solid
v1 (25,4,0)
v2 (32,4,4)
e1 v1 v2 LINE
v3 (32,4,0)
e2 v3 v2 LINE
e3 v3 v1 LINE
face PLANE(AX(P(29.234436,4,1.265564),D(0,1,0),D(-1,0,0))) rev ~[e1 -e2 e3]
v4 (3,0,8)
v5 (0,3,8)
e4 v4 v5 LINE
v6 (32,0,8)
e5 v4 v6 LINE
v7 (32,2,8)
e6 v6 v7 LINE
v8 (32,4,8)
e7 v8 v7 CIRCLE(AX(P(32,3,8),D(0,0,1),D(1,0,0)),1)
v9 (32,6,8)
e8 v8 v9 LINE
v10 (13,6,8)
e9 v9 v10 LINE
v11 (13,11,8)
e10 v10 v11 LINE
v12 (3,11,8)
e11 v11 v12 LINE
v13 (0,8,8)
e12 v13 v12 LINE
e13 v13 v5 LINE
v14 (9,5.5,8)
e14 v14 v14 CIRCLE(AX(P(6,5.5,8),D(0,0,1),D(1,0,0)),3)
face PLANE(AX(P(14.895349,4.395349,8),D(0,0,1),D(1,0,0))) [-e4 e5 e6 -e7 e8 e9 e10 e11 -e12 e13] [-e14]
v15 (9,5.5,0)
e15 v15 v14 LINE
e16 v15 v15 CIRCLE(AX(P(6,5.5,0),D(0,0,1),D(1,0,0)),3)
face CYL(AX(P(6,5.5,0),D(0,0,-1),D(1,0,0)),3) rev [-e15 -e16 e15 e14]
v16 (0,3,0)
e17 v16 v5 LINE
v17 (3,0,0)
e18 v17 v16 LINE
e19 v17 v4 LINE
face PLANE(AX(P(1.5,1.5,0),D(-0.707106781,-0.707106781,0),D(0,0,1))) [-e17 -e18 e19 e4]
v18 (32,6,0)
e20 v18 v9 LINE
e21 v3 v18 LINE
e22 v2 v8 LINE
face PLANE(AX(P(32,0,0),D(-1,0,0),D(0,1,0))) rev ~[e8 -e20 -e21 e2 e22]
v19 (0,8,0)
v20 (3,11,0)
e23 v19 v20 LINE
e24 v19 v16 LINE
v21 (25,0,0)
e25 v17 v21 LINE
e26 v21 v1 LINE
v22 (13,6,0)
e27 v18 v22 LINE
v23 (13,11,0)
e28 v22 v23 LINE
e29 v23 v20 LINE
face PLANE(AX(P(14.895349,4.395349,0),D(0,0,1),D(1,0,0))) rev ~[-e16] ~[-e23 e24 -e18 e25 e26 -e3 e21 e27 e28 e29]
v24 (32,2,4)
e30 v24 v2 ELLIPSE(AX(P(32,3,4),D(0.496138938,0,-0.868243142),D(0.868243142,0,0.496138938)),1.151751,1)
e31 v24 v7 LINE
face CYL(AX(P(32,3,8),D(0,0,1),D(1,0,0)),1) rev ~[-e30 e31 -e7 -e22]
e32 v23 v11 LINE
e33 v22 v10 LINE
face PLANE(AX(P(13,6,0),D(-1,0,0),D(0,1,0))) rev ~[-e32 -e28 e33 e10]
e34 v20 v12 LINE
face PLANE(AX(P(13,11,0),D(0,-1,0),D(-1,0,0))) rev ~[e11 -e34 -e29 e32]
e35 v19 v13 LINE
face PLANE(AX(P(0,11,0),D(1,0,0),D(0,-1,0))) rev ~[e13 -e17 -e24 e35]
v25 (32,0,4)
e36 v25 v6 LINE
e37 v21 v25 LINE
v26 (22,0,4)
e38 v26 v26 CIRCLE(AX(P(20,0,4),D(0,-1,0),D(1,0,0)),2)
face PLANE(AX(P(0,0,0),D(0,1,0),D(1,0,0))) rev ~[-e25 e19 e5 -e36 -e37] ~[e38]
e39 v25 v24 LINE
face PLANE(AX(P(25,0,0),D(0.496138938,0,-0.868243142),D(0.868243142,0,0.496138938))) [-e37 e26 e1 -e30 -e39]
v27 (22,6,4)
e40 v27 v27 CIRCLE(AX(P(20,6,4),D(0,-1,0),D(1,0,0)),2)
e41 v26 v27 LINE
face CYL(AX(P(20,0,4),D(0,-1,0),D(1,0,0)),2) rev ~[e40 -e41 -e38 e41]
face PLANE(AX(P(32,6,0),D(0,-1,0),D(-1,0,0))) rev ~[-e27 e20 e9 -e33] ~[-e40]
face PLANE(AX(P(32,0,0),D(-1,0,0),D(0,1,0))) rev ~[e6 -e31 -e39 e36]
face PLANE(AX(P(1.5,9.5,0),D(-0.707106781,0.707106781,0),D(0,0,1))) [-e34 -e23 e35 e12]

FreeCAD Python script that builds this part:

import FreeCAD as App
import Part
import Sketcher

V = App.Vector
Q = App.Units.Quantity


def edges_at(feature, points):
    """Names of the edges that pass closest to the given points."""
    edges = feature.Shape.Edges
    near = lambda p: min(range(len(edges)), key=lambda i: edges[i].distToShape(Part.Vertex(*p))[0])
    return sorted({f"Edge{near(p) + 1}" for p in points})

doc = App.newDocument("Part")
body = doc.addObject("PartDesign::Body", "Body")

# Sketch on XY plane
sketch1 = body.newObject("Sketcher::SketchObject", "Sketch")
sketch1.AttachmentSupport = (doc.getObject("XY_Plane"), [""])
sketch1.MapMode = "FlatFace"
sketch1.addGeometry([
    Part.LineSegment(V(32, 6, 0), V(13, 6, 0)),  # 0
    Part.LineSegment(V(13, 6, 0), V(13, 11, 0)),  # 1
    Part.LineSegment(V(13, 11, 0), V(0, 11, 0)),  # 2
    Part.LineSegment(V(0, 11, 0), V(0, 0, 0)),  # 3
    Part.LineSegment(V(0, 0, 0), V(32, 0, 0)),  # 4
    Part.LineSegment(V(32, 0, 0), V(32, 6, 0)),  # 5
    Part.Circle(V(6, 5.5, 0), V(0, 0, 1), 3),  # 6
], False)
sketch1.addConstraint([
    Sketcher.Constraint("Coincident", 0, 2, 1, 1),
    Sketcher.Constraint("Coincident", 1, 2, 2, 1),
    Sketcher.Constraint("Coincident", 2, 2, 3, 1),
    Sketcher.Constraint("Coincident", 3, 2, 4, 1),
    Sketcher.Constraint("Coincident", 4, 2, 5, 1),
    Sketcher.Constraint("Coincident", 5, 2, 0, 1),
    Sketcher.Constraint("Horizontal", 0),
    Sketcher.Constraint("Vertical", 1),
    Sketcher.Constraint("Horizontal", 2),
    Sketcher.Constraint("Vertical", 3),
    Sketcher.Constraint("Horizontal", 4),
    Sketcher.Constraint("Vertical", 5),
    Sketcher.Constraint("Coincident", 3, 2, -1, 1),
    Sketcher.Constraint("Diameter", 6, Q("6 mm")),
    Sketcher.Constraint("DistanceX", 0, 2, 0, 1, Q("19 mm")),
    Sketcher.Constraint("DistanceX", 2, 2, 2, 1, Q("13 mm")),
    Sketcher.Constraint("DistanceY", 1, 1, 1, 2, Q("5 mm")),
    Sketcher.Constraint("DistanceY", 3, 2, 3, 1, Q("11 mm")),
    Sketcher.Constraint("DistanceX", -1, 1, 6, 3, Q("6 mm")),
    Sketcher.Constraint("DistanceY", -1, 1, 6, 3, Q("5.5 mm")),
])
pad1 = body.newObject("PartDesign::Pad", "Pad")
pad1.Profile = sketch1
pad1.Length = 8

# Sketch on XY plane
sketch2 = body.newObject("Sketcher::SketchObject", "Sketch001")
sketch2.AttachmentSupport = (doc.getObject("XY_Plane"), [""])
sketch2.MapMode = "FlatFace"
sketch2.AttachmentOffset = App.Placement(V(0, 0, 8), App.Rotation())
sketch2.addGeometry(Part.Circle(V(32, 3, 0), V(0, 0, 1), 1), False)
sketch2.addConstraint([
    Sketcher.Constraint("Diameter", 0, Q("2 mm")),
    Sketcher.Constraint("DistanceX", -1, 1, 0, 3, Q("32 mm")),
    Sketcher.Constraint("DistanceY", -1, 1, 0, 3, Q("3 mm")),
])
pocket1 = body.newObject("PartDesign::Pocket", "Pocket")
pocket1.Profile = sketch2
pocket1.Type = "ThroughAll"

# Sketch on XZ plane
sketch3 = body.newObject("Sketcher::SketchObject", "Sketch002")
sketch3.AttachmentSupport = (doc.getObject("XZ_Plane"), [""])
sketch3.MapMode = "FlatFace"
sketch3.addGeometry([
    Part.LineSegment(V(32, 4, 0), V(25, 0, 0)),
    Part.LineSegment(V(25, 0, 0), V(32, 0, 0)),
    Part.LineSegment(V(32, 0, 0), V(32, 4, 0)),
], False)
sketch3.addConstraint([
    Sketcher.Constraint("Coincident", 0, 2, 1, 1),
    Sketcher.Constraint("Coincident", 1, 2, 2, 1),
    Sketcher.Constraint("Coincident", 2, 2, 0, 1),
    Sketcher.Constraint("Horizontal", 1),
    Sketcher.Constraint("Vertical", 2),
    Sketcher.Constraint("PointOnObject", 0, 2, -1),
    Sketcher.Constraint("DistanceX", 1, 1, 1, 2, Q("7 mm")),
    Sketcher.Constraint("DistanceY", 2, 1, 2, 2, Q("4 mm")),
    Sketcher.Constraint("DistanceX", -1, 1, 0, 2, Q("25 mm")),
])
pocket2 = body.newObject("PartDesign::Pocket", "Pocket001")
pocket2.Profile = sketch3
pocket2.Length = 4

# Sketch on XZ plane
sketch4 = body.newObject("Sketcher::SketchObject", "Sketch003")
sketch4.AttachmentSupport = (doc.getObject("XZ_Plane"), [""])
sketch4.MapMode = "FlatFace"
sketch4.addGeometry(Part.Circle(V(20, 4, 0), V(0, 0, 1), 2), False)
sketch4.addConstraint([
    Sketcher.Constraint("Diameter", 0, Q("4 mm")),
    Sketcher.Constraint("DistanceX", -1, 1, 0, 3, Q("20 mm")),
    Sketcher.Constraint("DistanceY", -1, 1, 0, 3, Q("4 mm")),
])
pocket3 = body.newObject("PartDesign::Pocket", "Pocket002")
pocket3.Profile = sketch4
pocket3.Type = "ThroughAll"
doc.recompute()

chamfer = body.newObject("PartDesign::Chamfer", "Chamfer")
chamfer.Base = (pocket3, edges_at(pocket3, [(0, 0, 4), (0, 11, 4)]))
chamfer.Size = 3

doc.recompute()
